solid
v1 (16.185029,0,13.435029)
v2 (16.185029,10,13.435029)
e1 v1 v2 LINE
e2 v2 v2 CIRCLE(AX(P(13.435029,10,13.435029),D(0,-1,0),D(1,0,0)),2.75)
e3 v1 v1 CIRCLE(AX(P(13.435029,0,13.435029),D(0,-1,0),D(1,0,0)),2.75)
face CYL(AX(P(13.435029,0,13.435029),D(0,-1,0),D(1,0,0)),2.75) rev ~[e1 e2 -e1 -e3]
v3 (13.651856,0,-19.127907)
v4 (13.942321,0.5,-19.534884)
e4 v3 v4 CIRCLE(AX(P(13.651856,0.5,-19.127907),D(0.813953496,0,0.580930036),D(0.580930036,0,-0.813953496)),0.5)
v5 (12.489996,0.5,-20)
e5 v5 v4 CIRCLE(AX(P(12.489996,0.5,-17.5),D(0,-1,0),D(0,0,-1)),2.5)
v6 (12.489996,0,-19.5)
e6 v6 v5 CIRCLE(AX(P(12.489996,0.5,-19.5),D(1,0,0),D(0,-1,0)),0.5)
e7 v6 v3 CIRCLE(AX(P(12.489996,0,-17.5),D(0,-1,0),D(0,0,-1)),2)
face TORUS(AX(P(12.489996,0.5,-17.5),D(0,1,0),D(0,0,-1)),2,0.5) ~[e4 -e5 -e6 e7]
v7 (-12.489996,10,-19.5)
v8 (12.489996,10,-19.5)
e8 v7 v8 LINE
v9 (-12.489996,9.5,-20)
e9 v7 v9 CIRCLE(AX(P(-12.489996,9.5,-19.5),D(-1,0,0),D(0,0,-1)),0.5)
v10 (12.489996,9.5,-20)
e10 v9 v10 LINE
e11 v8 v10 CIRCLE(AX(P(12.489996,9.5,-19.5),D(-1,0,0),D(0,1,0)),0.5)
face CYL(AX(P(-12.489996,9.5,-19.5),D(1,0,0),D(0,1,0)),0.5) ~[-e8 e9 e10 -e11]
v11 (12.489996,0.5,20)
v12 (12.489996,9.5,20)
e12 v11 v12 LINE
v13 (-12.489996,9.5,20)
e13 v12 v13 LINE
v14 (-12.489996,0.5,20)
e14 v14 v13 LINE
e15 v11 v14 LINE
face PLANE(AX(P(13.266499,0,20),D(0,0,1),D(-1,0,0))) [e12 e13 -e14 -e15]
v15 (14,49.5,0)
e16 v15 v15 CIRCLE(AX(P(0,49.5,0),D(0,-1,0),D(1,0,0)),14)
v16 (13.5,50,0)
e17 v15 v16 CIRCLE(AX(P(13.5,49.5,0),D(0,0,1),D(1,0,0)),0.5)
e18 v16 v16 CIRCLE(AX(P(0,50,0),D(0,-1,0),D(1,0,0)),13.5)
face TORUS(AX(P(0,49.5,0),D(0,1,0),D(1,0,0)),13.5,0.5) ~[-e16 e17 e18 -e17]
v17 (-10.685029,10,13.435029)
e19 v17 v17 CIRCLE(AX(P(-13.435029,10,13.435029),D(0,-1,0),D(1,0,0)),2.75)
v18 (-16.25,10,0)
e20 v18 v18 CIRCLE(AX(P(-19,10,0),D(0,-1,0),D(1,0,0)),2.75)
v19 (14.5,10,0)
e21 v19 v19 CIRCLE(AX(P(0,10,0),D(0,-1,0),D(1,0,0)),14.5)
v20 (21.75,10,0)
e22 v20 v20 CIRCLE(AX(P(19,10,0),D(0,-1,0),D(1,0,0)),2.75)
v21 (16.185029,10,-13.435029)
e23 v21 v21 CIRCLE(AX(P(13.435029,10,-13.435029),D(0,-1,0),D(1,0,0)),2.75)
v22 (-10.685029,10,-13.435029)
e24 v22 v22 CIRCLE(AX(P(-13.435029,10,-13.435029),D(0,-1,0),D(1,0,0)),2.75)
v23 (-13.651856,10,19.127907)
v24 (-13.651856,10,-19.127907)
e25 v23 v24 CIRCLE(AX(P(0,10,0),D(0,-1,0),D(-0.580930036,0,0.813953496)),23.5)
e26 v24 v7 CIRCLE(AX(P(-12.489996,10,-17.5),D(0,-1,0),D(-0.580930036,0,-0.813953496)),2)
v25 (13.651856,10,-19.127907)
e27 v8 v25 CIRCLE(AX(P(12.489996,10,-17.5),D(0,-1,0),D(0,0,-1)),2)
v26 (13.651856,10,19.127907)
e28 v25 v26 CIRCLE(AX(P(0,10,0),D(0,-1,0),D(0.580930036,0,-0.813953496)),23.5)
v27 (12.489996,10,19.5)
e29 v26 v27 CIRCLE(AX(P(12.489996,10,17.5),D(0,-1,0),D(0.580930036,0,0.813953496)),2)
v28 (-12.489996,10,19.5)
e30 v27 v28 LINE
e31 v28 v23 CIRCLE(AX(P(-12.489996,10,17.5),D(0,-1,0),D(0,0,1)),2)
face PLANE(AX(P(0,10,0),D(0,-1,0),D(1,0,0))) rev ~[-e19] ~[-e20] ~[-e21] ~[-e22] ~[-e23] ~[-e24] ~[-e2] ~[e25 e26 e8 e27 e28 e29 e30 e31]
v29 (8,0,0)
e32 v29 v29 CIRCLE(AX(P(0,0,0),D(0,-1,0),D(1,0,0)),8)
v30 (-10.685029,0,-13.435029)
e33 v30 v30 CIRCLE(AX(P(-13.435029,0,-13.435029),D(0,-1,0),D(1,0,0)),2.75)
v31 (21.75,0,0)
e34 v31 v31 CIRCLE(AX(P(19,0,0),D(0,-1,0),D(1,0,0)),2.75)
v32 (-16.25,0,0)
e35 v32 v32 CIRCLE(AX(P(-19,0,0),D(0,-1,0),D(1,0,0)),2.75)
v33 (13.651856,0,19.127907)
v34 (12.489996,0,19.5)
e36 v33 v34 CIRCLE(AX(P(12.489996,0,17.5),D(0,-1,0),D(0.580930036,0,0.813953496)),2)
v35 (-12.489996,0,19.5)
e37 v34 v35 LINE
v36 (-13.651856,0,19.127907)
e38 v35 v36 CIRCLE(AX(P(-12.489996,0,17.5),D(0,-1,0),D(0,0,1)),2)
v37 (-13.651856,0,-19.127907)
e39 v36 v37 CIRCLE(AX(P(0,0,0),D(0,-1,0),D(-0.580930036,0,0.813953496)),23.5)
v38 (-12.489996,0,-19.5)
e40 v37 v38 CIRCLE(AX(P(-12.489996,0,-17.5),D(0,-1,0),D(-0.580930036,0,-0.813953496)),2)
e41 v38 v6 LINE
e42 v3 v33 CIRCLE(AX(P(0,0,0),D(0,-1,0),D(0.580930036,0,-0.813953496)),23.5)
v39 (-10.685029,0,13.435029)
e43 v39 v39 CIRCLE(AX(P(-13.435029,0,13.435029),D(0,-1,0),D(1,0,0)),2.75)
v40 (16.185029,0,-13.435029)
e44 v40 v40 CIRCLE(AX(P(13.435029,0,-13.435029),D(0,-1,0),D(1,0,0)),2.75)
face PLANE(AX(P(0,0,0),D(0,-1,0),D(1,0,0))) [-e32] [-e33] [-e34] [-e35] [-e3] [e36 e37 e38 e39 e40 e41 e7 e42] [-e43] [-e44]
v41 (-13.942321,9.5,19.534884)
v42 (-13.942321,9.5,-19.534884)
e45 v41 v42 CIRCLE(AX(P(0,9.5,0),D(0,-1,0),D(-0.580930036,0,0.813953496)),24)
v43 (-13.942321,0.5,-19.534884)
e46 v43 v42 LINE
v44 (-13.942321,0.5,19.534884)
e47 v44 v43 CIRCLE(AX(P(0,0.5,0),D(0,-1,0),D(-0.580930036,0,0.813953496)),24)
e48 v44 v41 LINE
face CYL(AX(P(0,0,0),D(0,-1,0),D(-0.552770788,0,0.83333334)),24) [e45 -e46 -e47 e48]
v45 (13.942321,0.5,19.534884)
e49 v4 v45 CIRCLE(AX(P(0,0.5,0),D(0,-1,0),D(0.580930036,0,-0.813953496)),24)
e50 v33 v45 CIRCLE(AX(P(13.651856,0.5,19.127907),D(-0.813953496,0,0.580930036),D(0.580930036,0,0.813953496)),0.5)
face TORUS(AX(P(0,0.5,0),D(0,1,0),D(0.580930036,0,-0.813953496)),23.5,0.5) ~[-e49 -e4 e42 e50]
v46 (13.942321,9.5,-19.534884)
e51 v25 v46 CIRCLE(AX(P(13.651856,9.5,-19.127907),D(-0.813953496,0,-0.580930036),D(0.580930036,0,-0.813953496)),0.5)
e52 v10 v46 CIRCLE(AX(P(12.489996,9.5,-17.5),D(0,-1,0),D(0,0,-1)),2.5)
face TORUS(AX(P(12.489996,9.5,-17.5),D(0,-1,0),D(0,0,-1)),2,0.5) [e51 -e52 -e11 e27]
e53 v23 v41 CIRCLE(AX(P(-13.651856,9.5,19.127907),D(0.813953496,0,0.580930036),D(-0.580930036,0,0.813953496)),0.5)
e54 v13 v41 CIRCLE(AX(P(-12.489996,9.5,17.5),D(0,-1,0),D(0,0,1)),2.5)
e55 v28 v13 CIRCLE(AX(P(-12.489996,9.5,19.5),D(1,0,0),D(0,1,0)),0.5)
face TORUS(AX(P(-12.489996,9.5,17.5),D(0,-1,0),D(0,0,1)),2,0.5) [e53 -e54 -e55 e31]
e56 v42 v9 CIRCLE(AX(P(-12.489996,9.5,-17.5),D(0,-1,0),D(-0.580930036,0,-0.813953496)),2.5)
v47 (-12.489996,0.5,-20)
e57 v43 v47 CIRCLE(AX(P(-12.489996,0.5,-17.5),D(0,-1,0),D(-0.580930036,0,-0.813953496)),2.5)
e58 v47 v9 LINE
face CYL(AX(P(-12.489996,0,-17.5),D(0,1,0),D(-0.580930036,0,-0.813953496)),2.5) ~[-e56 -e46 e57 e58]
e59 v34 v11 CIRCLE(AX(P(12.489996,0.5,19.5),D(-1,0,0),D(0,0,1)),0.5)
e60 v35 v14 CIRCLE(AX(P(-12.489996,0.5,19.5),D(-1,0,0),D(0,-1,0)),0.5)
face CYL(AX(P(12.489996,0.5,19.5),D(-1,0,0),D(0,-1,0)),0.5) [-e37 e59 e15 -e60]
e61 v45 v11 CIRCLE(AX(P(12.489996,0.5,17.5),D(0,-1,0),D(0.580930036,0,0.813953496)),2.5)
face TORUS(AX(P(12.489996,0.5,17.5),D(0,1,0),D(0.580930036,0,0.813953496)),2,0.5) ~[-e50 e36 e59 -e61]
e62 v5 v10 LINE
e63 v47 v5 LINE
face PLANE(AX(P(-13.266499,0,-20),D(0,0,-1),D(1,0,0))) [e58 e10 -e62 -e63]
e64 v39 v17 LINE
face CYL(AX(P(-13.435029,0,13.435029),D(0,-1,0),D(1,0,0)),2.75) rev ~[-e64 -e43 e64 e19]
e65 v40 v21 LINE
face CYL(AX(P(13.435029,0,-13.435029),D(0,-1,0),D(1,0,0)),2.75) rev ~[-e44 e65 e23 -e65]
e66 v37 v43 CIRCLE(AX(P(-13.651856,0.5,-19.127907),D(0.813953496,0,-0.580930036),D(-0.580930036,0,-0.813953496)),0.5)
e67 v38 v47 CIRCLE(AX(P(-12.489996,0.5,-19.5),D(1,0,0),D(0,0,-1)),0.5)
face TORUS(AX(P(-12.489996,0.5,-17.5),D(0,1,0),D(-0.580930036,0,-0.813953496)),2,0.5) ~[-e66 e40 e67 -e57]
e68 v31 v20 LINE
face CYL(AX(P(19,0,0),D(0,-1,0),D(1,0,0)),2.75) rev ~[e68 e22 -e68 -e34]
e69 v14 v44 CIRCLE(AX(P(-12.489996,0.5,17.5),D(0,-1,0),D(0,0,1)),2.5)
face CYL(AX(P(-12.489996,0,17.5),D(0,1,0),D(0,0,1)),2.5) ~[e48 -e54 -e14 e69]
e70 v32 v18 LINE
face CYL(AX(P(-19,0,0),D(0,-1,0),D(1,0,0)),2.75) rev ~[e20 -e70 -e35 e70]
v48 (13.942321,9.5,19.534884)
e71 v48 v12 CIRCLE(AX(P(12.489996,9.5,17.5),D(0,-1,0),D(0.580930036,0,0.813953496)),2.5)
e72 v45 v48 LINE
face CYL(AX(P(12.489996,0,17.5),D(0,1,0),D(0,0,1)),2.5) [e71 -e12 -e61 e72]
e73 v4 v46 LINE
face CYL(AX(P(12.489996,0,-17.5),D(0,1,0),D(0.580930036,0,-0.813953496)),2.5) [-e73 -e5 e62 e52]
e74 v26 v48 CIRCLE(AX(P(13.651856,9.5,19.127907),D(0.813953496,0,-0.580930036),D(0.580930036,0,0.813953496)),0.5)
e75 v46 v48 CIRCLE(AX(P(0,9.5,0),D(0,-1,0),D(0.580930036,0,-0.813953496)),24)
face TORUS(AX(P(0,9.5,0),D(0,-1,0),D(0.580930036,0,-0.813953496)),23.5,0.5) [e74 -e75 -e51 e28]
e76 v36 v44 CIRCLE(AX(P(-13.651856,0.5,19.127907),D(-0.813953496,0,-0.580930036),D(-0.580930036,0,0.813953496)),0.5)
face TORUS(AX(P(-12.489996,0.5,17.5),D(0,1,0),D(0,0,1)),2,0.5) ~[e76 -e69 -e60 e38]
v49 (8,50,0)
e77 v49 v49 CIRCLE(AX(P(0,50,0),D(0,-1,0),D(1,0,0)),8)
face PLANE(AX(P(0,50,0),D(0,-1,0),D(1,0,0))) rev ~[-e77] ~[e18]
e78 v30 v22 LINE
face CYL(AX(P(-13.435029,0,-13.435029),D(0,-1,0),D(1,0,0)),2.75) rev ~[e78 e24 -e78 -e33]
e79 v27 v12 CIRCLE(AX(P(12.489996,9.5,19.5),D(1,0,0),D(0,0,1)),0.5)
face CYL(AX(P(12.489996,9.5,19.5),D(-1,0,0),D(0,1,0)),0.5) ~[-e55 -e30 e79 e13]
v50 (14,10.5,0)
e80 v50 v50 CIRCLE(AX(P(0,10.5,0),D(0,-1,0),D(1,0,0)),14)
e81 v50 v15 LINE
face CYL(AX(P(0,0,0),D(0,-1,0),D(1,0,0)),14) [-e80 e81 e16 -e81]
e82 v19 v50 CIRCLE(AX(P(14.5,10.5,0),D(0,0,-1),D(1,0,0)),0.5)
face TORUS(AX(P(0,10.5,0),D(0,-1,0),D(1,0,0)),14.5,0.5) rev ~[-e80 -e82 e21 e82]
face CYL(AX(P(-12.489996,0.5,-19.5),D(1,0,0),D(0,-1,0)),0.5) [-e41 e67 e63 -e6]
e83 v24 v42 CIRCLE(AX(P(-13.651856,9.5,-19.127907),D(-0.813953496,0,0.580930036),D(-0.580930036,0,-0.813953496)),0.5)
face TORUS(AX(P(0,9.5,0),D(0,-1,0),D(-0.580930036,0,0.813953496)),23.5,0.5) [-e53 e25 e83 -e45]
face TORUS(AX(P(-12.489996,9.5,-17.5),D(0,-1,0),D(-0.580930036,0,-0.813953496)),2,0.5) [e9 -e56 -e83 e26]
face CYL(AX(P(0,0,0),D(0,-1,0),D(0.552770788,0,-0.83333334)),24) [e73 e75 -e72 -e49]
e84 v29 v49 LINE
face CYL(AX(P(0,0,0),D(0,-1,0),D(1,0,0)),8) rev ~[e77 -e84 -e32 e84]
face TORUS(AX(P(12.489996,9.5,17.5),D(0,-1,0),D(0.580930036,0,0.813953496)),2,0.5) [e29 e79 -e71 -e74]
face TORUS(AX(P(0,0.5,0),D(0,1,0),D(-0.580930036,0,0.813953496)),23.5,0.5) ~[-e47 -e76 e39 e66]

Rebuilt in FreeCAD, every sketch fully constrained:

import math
import FreeCAD as App
import Part
import Sketcher
Q = App.Units.Quantity


def edges_at(feature, points):
    """Names of the edges that pass closest to the given points."""
    edges = feature.Shape.Edges
    near = lambda p: min(range(len(edges)), key=lambda i: edges[i].distToShape(Part.Vertex(*p))[0])
    return sorted({f"Edge{near(p) + 1}" for p in points})

doc = App.newDocument("Part")
body = doc.addObject("PartDesign::Body", "Body")

# Sketch on XZ plane
sketch1 = doc.addObject("Sketcher::SketchObject", "Sketch")
body.addObject(sketch1)
sketch1.AttachmentSupport = (doc.XZ_Plane, [""])
sketch1.MapMode = "FlatFace"
sketch1.addGeometry(Part.Circle(App.Vector(0, 0, 0), App.Vector(0, 0, 1), 14), False)
sketch1.addGeometry(Part.Circle(App.Vector(0, 0, 0), App.Vector(0, 0, 1), 8), False)
sketch1.addConstraint(Sketcher.Constraint("Coincident", 0, 3, -1, 1))
sketch1.addConstraint(Sketcher.Constraint("Coincident", 1, 3, -1, 1))
sketch1.addConstraint(Sketcher.Constraint("Diameter", 0, Q("28 mm")))
sketch1.addConstraint(Sketcher.Constraint("Diameter", 1, Q("16 mm")))
pad1 = doc.addObject("PartDesign::Pad", "Pad")
body.addObject(pad1)
pad1.Profile = sketch1
pad1.Length = 50
pad1.Reversed = True

# Sketch on XZ plane
sketch2 = doc.addObject("Sketcher::SketchObject", "Sketch001")
body.addObject(sketch2)
sketch2.AttachmentSupport = (doc.XZ_Plane, [""])
sketch2.MapMode = "FlatFace"
sketch2.addGeometry(Part.LineSegment(App.Vector(13.3, 20, 0), App.Vector(-13.3, 20, 0)), False)
sketch2.addGeometry(Part.ArcOfCircle(Part.Circle(App.Vector(0, 0, 0), App.Vector(0, 0, 1), 24), math.radians(124), math.radians(236)), False)
sketch2.addGeometry(Part.LineSegment(App.Vector(-13.3, -20, 0), App.Vector(13.3, -20, 0)), False)
sketch2.addGeometry(Part.ArcOfCircle(Part.Circle(App.Vector(0, 0, 0), App.Vector(0, 0, 1), 24), math.radians(-56), math.radians(56)), False)
sketch2.addGeometry(Part.Circle(App.Vector(-13.4, -13.4, 0), App.Vector(0, 0, 1), 2.8), False)
sketch2.addGeometry(Part.Circle(App.Vector(13.4, -13.4, 0), App.Vector(0, 0, 1), 2.8), False)
sketch2.addGeometry(Part.Circle(App.Vector(-19, 0, 0), App.Vector(0, 0, 1), 2.8), False)
sketch2.addGeometry(Part.Circle(App.Vector(-13.4, 13.4, 0), App.Vector(0, 0, 1), 2.8), False)
sketch2.addGeometry(Part.Circle(App.Vector(0, 0, 0), App.Vector(0, 0, 1), 14), False)
sketch2.addGeometry(Part.Circle(App.Vector(19, 0, 0), App.Vector(0, 0, 1), 2.8), False)
sketch2.addGeometry(Part.Circle(App.Vector(13.4, 13.4, 0), App.Vector(0, 0, 1), 2.8), False)
sketch2.addConstraint(Sketcher.Constraint("Coincident", 0, 2, 1, 1))
sketch2.addConstraint(Sketcher.Constraint("Coincident", 1, 2, 2, 1))
sketch2.addConstraint(Sketcher.Constraint("Coincident", 2, 2, 3, 1))
sketch2.addConstraint(Sketcher.Constraint("Coincident", 3, 2, 0, 1))
sketch2.addConstraint(Sketcher.Constraint("Horizontal", 0))
sketch2.addConstraint(Sketcher.Constraint("Horizontal", 2))
sketch2.addConstraint(Sketcher.Constraint("Coincident", 1, 3, -1, 1))
sketch2.addConstraint(Sketcher.Constraint("Coincident", 3, 3, -1, 1))
sketch2.addConstraint(Sketcher.Constraint("Coincident", 8, 3, -1, 1))
sketch2.addConstraint(Sketcher.Constraint("Equal", 1, 3))
sketch2.addConstraint(Sketcher.Constraint("Equal", 4, 5))
sketch2.addConstraint(Sketcher.Constraint("Equal", 5, 6))
sketch2.addConstraint(Sketcher.Constraint("Equal", 6, 7))
sketch2.addConstraint(Sketcher.Constraint("Equal", 7, 9))
sketch2.addConstraint(Sketcher.Constraint("Equal", 9, 10))
sketch2.addConstraint(Sketcher.Constraint("Symmetric", 5, 3, 7, 3, -1, 1))
sketch2.addConstraint(Sketcher.Constraint("Symmetric", 6, 3, 9, 3, -1, 1))
sketch2.addConstraint(Sketcher.Constraint("Symmetric", 4, 3, 10, 3, -1, 1))
sketch2.addConstraint(Sketcher.Constraint("Symmetric", 4, 3, 5, 3, -2))
sketch2.addConstraint(Sketcher.Constraint("PointOnObject", 6, 3, -1))
sketch2.addConstraint(Sketcher.Constraint("Vertical", 0, 2, 1, 2))
sketch2.addConstraint(Sketcher.Constraint("Diameter", 8, Q("28 mm")))
sketch2.addConstraint(Sketcher.Constraint("Radius", 1, Q("24 mm")))
sketch2.addConstraint(Sketcher.Constraint("Diameter", 4, Q("5.5 mm")))
sketch2.addConstraint(Sketcher.Constraint("DistanceX", 6, 3, -1, 1, Q("19 mm")))
sketch2.addConstraint(Sketcher.Constraint("DistanceY", -1, 1, 0, 2, Q("20 mm")))
sketch2.addConstraint(Sketcher.Constraint("DistanceX", 4, 3, -1, 1, Q("13.435029 mm")))
sketch2.addConstraint(Sketcher.Constraint("DistanceY", 4, 3, -1, 1, Q("13.435029 mm")))
pad2 = doc.addObject("PartDesign::Pad", "Pad001")
body.addObject(pad2)
pad2.Profile = sketch2
pad2.Length = 10
pad2.Reversed = True
doc.recompute()

fillet = doc.addObject("PartDesign::Fillet", "Fillet")
body.addObject(fillet)
fillet.Base = (pad2, edges_at(pad2, [
    (-13.266, 5, 20),
    (-13.266, 5, -20),
    (13.266, 5, 20),
    (13.266, 5, -20),
]))
fillet.Radius = 2.5
doc.recompute()

fillet2 = doc.addObject("PartDesign::Fillet", "Fillet001")
body.addObject(fillet2)
fillet2.Base = (fillet, edges_at(fillet, [
    (24, 10, 0),
    (24, 0, 0),
    (-14, 10, 0),
    (-14, 50, 0),
]))
fillet2.Radius = 0.5

doc.recompute()
